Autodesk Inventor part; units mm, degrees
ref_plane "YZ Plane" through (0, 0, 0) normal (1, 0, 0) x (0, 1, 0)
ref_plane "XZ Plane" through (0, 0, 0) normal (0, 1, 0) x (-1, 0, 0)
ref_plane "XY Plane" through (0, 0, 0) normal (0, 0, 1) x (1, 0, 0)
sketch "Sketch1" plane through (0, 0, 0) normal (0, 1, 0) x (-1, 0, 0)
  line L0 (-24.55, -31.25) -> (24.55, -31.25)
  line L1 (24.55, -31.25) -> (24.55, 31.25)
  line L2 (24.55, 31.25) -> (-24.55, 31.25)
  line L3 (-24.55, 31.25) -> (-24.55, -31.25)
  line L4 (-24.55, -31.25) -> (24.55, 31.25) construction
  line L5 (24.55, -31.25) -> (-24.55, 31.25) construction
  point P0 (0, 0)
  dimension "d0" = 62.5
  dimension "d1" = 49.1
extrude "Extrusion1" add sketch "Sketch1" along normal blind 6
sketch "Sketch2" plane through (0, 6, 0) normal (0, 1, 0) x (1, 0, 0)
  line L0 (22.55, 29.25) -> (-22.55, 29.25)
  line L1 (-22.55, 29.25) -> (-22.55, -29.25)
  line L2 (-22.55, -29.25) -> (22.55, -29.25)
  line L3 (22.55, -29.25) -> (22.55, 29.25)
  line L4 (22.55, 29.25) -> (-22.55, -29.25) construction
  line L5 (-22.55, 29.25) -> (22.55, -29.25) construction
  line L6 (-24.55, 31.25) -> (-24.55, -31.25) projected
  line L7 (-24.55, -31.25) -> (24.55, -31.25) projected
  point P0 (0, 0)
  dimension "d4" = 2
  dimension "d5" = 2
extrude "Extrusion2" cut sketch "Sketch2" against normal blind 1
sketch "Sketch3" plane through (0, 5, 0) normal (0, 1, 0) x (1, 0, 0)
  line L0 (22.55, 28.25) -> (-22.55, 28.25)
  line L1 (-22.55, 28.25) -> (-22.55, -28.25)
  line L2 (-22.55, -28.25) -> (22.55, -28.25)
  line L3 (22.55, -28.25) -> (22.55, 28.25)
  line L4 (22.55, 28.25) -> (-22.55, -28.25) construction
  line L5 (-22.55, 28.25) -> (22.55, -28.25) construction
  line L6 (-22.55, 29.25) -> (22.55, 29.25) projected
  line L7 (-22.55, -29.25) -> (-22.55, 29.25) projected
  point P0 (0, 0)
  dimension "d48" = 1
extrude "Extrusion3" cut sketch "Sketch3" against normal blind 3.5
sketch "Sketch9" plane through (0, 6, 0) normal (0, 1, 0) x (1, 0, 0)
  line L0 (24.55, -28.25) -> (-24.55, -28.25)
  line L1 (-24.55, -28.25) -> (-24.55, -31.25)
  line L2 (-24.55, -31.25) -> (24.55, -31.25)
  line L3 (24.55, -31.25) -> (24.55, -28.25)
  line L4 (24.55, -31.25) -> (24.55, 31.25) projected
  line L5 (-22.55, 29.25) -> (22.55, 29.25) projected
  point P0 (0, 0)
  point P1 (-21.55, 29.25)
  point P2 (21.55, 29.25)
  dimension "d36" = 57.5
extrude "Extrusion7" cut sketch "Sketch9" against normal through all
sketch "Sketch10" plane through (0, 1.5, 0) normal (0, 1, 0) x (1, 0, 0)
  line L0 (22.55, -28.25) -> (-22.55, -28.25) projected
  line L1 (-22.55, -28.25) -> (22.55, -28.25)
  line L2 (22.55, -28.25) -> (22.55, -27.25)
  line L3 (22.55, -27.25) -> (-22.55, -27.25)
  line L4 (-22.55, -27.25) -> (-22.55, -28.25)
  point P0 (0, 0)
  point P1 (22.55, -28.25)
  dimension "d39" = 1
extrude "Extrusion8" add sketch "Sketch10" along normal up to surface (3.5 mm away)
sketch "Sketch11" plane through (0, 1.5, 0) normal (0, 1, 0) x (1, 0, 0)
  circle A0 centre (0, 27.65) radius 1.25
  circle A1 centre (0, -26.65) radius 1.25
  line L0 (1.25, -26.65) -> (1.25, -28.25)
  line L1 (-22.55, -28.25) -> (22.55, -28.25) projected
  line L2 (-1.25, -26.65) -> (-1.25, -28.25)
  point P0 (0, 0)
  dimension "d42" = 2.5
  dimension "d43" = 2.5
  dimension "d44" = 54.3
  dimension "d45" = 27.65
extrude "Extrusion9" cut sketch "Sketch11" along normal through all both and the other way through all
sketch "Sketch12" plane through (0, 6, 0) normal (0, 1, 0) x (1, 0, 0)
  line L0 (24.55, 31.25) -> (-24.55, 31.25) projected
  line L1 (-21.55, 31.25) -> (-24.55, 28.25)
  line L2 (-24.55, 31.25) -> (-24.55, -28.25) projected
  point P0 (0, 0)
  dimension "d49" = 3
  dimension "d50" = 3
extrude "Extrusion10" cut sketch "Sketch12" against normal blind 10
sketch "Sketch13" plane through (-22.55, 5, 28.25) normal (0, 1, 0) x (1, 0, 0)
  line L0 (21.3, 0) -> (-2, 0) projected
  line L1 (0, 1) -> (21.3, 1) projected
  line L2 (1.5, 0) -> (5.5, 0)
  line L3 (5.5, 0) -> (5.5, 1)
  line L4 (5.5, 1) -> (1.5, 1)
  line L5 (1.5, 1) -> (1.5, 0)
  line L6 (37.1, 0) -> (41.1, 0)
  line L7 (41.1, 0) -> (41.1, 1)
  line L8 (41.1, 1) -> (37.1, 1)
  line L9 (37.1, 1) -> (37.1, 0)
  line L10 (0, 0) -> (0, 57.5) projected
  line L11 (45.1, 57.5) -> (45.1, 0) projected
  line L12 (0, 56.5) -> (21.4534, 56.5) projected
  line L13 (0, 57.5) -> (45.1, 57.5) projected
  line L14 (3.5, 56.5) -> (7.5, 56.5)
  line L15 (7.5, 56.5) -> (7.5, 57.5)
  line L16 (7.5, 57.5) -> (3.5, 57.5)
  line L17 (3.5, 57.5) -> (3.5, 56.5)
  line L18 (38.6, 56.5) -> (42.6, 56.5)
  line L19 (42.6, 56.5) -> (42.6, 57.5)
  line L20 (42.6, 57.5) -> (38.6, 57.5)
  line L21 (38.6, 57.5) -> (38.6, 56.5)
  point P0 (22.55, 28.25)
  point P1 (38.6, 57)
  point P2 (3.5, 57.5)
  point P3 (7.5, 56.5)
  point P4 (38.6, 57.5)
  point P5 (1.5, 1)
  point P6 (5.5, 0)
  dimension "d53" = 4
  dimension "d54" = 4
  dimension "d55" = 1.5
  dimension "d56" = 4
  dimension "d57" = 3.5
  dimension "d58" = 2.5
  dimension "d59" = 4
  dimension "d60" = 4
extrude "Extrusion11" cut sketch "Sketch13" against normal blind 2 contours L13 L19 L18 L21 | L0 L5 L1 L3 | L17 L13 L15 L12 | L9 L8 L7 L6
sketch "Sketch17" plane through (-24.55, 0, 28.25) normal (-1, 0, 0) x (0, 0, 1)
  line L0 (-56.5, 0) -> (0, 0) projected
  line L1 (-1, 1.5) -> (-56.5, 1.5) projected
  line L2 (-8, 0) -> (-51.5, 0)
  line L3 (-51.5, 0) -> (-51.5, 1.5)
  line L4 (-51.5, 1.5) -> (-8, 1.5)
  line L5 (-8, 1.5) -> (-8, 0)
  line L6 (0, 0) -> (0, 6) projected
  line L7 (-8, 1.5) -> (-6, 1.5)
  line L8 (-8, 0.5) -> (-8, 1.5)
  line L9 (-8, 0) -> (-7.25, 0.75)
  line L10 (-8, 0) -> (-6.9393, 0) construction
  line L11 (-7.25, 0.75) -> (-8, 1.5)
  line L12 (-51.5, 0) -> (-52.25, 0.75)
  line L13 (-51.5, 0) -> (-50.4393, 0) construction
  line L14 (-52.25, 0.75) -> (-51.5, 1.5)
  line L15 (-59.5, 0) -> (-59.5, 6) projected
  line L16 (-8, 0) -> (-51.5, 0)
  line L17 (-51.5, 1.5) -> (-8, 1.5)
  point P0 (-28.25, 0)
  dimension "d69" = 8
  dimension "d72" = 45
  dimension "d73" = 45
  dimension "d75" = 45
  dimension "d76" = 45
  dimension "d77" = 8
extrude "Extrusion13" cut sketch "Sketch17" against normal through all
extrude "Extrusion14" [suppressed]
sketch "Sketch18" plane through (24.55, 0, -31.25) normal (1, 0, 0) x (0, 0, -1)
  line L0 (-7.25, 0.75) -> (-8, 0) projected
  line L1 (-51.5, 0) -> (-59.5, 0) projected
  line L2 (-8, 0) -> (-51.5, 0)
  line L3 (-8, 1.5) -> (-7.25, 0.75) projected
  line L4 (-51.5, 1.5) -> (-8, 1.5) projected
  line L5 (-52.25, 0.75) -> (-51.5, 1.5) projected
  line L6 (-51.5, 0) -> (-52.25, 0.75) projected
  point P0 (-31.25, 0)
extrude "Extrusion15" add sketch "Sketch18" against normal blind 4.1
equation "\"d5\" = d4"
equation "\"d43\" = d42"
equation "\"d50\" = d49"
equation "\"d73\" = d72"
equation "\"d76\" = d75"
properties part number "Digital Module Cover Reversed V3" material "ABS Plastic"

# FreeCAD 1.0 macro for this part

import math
import FreeCAD as App
import Part
import Sketcher
from FreeCAD import Vector

doc = App.newDocument("Part")
body = doc.addObject("PartDesign::Body", "Body")

sketch1 = doc.addObject("Sketcher::SketchObject", "Sketch")
body.addObject(sketch1)
sketch1.AttachmentSupport = (doc.XZ_Plane, [""])
sketch1.MapMode = "FlatFace"
sketch1.addGeometry(Part.LineSegment(Vector(25, 31, 0), Vector(25, -31, 0)), False)
sketch1.addGeometry(Part.LineSegment(Vector(25, -31, 0), Vector(-25, -31, 0)), False)
sketch1.addGeometry(Part.LineSegment(Vector(-25, -31, 0), Vector(-25, 31, 0)), False)
sketch1.addGeometry(Part.LineSegment(Vector(-25, 31, 0), Vector(25, 31, 0)), False)
sketch1.addConstraint(Sketcher.Constraint("Coincident", 0, 2, 1, 1))
sketch1.addConstraint(Sketcher.Constraint("Coincident", 1, 2, 2, 1))
sketch1.addConstraint(Sketcher.Constraint("Coincident", 2, 2, 3, 1))
sketch1.addConstraint(Sketcher.Constraint("Coincident", 3, 2, 0, 1))
sketch1.addConstraint(Sketcher.Constraint("Vertical", 0))
sketch1.addConstraint(Sketcher.Constraint("Horizontal", 1))
sketch1.addConstraint(Sketcher.Constraint("Vertical", 2))
sketch1.addConstraint(Sketcher.Constraint("Horizontal", 3))
sketch1.addConstraint(Sketcher.Constraint("Symmetric", 0, 2, 2, 2, -1, 1))
sketch1.addConstraint(Sketcher.Constraint("DistanceX", 1, 2, 1, 1, 49.1))
sketch1.addConstraint(Sketcher.Constraint("DistanceY", 0, 2, 0, 1, 62.5))
pad1 = doc.addObject("PartDesign::Pad", "Pad")
body.addObject(pad1)
pad1.Profile = sketch1
pad1.Length = 6
pad1.Reversed = True

sketch2 = doc.addObject("Sketcher::SketchObject", "Sketch001")
body.addObject(sketch2)
sketch2.AttachmentSupport = (doc.XZ_Plane, [""])
sketch2.MapMode = "FlatFace"
sketch2.AttachmentOffset = App.Placement(Vector(0, 0, -6), App.Rotation())
sketch2.addGeometry(Part.LineSegment(Vector(23, 29, 0), Vector(23, -29, 0)), False)
sketch2.addGeometry(Part.LineSegment(Vector(23, -29, 0), Vector(-23, -29, 0)), False)
sketch2.addGeometry(Part.LineSegment(Vector(-23, -29, 0), Vector(-23, 29, 0)), False)
sketch2.addGeometry(Part.LineSegment(Vector(-23, 29, 0), Vector(23, 29, 0)), False)
sketch2.addConstraint(Sketcher.Constraint("Coincident", 0, 2, 1, 1))
sketch2.addConstraint(Sketcher.Constraint("Coincident", 1, 2, 2, 1))
sketch2.addConstraint(Sketcher.Constraint("Coincident", 2, 2, 3, 1))
sketch2.addConstraint(Sketcher.Constraint("Coincident", 3, 2, 0, 1))
sketch2.addConstraint(Sketcher.Constraint("Vertical", 0))
sketch2.addConstraint(Sketcher.Constraint("Horizontal", 1))
sketch2.addConstraint(Sketcher.Constraint("Vertical", 2))
sketch2.addConstraint(Sketcher.Constraint("Horizontal", 3))
sketch2.addConstraint(Sketcher.Constraint("Symmetric", 0, 2, 2, 2, -1, 1))
sketch2.addConstraint(Sketcher.Constraint("DistanceX", 1, 2, 1, 1, 45.1))
sketch2.addConstraint(Sketcher.Constraint("DistanceY", 0, 2, 0, 1, 58.5))
pocket1 = doc.addObject("PartDesign::Pocket", "Pocket")
body.addObject(pocket1)
pocket1.Profile = sketch2
pocket1.Length = 1
pocket1.Reversed = True

sketch3 = doc.addObject("Sketcher::SketchObject", "Sketch002")
body.addObject(sketch3)
sketch3.AttachmentSupport = (doc.XZ_Plane, [""])
sketch3.MapMode = "FlatFace"
sketch3.AttachmentOffset = App.Placement(Vector(0, 0, -5), App.Rotation())
sketch3.addGeometry(Part.LineSegment(Vector(23, 28, 0), Vector(23, -28, 0)), False)
sketch3.addGeometry(Part.LineSegment(Vector(23, -28, 0), Vector(-23, -28, 0)), False)
sketch3.addGeometry(Part.LineSegment(Vector(-23, -28, 0), Vector(-23, 28, 0)), False)
sketch3.addGeometry(Part.LineSegment(Vector(-23, 28, 0), Vector(23, 28, 0)), False)
sketch3.addConstraint(Sketcher.Constraint("Coincident", 0, 2, 1, 1))
sketch3.addConstraint(Sketcher.Constraint("Coincident", 1, 2, 2, 1))
sketch3.addConstraint(Sketcher.Constraint("Coincident", 2, 2, 3, 1))
sketch3.addConstraint(Sketcher.Constraint("Coincident", 3, 2, 0, 1))
sketch3.addConstraint(Sketcher.Constraint("Vertical", 0))
sketch3.addConstraint(Sketcher.Constraint("Horizontal", 1))
sketch3.addConstraint(Sketcher.Constraint("Vertical", 2))
sketch3.addConstraint(Sketcher.Constraint("Horizontal", 3))
sketch3.addConstraint(Sketcher.Constraint("Symmetric", 0, 2, 2, 2, -1, 1))
sketch3.addConstraint(Sketcher.Constraint("DistanceX", 1, 2, 1, 1, 45.1))
sketch3.addConstraint(Sketcher.Constraint("DistanceY", 0, 2, 0, 1, 56.5))
pocket2 = doc.addObject("PartDesign::Pocket", "Pocket001")
body.addObject(pocket2)
pocket2.Profile = sketch3
pocket2.Length = 3.5
pocket2.Reversed = True

sketch4 = doc.addObject("Sketcher::SketchObject", "Sketch003")
body.addObject(sketch4)
sketch4.AttachmentSupport = (doc.XZ_Plane, [""])
sketch4.MapMode = "FlatFace"
sketch4.AttachmentOffset = App.Placement(Vector(0, 0, -6), App.Rotation())
sketch4.addGeometry(Part.LineSegment(Vector(24.6, 31.2, 0), Vector(24.6, 28.2, 0)), False)
sketch4.addGeometry(Part.LineSegment(Vector(24.6, 28.2, 0), Vector(-24.6, 28.2, 0)), False)
sketch4.addGeometry(Part.LineSegment(Vector(-24.6, 28.2, 0), Vector(-24.6, 31.2, 0)), False)
sketch4.addGeometry(Part.LineSegment(Vector(-24.6, 31.2, 0), Vector(24.6, 31.2, 0)), False)
sketch4.addConstraint(Sketcher.Constraint("Coincident", 0, 2, 1, 1))
sketch4.addConstraint(Sketcher.Constraint("Coincident", 1, 2, 2, 1))
sketch4.addConstraint(Sketcher.Constraint("Coincident", 2, 2, 3, 1))
sketch4.addConstraint(Sketcher.Constraint("Coincident", 3, 2, 0, 1))
sketch4.addConstraint(Sketcher.Constraint("Vertical", 0))
sketch4.addConstraint(Sketcher.Constraint("Horizontal", 1))
sketch4.addConstraint(Sketcher.Constraint("Vertical", 2))
sketch4.addConstraint(Sketcher.Constraint("Horizontal", 3))
sketch4.addConstraint(Sketcher.Constraint("DistanceY", 0, 2, 0, 1, 3.0))
sketch4.addConstraint(Sketcher.Constraint("DistanceX", 1, 2, 1, 1, 49.1))
sketch4.addConstraint(Sketcher.Constraint("DistanceX", -1, 1, 0, 2, 24.55))
sketch4.addConstraint(Sketcher.Constraint("DistanceY", -1, 1, 0, 2, 28.25))
pocket3 = doc.addObject("PartDesign::Pocket", "Pocket002")
body.addObject(pocket3)
pocket3.Profile = sketch4
pocket3.Type = "ThroughAll"
pocket3.Reversed = True

sketch5 = doc.addObject("Sketcher::SketchObject", "Sketch004")
body.addObject(sketch5)
sketch5.AttachmentSupport = (doc.XZ_Plane, [""])
sketch5.MapMode = "FlatFace"
sketch5.AttachmentOffset = App.Placement(Vector(0, 0, -1.5), App.Rotation())
sketch5.addGeometry(Part.LineSegment(Vector(-22.6, 28.2, 0), Vector(22.6, 28.2, 0)), False)
sketch5.addGeometry(Part.LineSegment(Vector(22.6, 28.2, 0), Vector(22.6, 27.2, 0)), False)
sketch5.addGeometry(Part.LineSegment(Vector(22.6, 27.2, 0), Vector(-22.6, 27.2, 0)), False)
sketch5.addGeometry(Part.LineSegment(Vector(-22.6, 27.2, 0), Vector(-22.6, 28.2, 0)), False)
sketch5.addConstraint(Sketcher.Constraint("Coincident", 0, 2, 1, 1))
sketch5.addConstraint(Sketcher.Constraint("Coincident", 1, 2, 2, 1))
sketch5.addConstraint(Sketcher.Constraint("Coincident", 2, 2, 3, 1))
sketch5.addConstraint(Sketcher.Constraint("Coincident", 3, 2, 0, 1))
sketch5.addConstraint(Sketcher.Constraint("Horizontal", 0))
sketch5.addConstraint(Sketcher.Constraint("Vertical", 1))
sketch5.addConstraint(Sketcher.Constraint("Horizontal", 2))
sketch5.addConstraint(Sketcher.Constraint("Vertical", 3))
sketch5.addConstraint(Sketcher.Constraint("DistanceY", 1, 2, 1, 1, 1.0))
sketch5.addConstraint(Sketcher.Constraint("DistanceX", 0, 1, 0, 2, 45.1))
sketch5.addConstraint(Sketcher.Constraint("DistanceX", -1, 1, 0, 2, 22.55))
sketch5.addConstraint(Sketcher.Constraint("DistanceY", -1, 1, 0, 2, 28.25))
pad2 = doc.addObject("PartDesign::Pad", "Pad001")
body.addObject(pad2)
pad2.Profile = sketch5
pad2.Length = 3.5
pad2.Reversed = True

sketch6 = doc.addObject("Sketcher::SketchObject", "Sketch005")
body.addObject(sketch6)
sketch6.AttachmentSupport = (doc.XZ_Plane, [""])
sketch6.MapMode = "FlatFace"
sketch6.AttachmentOffset = App.Placement(Vector(0, 0, -1.5), App.Rotation())
sketch6.addGeometry(Part.Circle(Vector(0, -27.6, 0), Vector(0, 0, 1), 1.2), False)
sketch6.addGeometry(Part.ArcOfCircle(Part.Circle(Vector(0, 26.6, 0), Vector(0, 0, 1), 1.2), math.radians(180), math.radians(360)), False)
sketch6.addGeometry(Part.LineSegment(Vector(-1.2, 26.6, 0), Vector(-1.2, 28.2, 0)), False)
sketch6.addGeometry(Part.LineSegment(Vector(-1.2, 28.2, 0), Vector(1.2, 28.2, 0)), False)
sketch6.addGeometry(Part.LineSegment(Vector(1.2, 28.2, 0), Vector(1.2, 26.6, 0)), False)
sketch6.addConstraint(Sketcher.Constraint("Tangent", 1, 1, 2, 1))
sketch6.addConstraint(Sketcher.Constraint("Coincident", 2, 2, 3, 1))
sketch6.addConstraint(Sketcher.Constraint("Coincident", 3, 2, 4, 1))
sketch6.addConstraint(Sketcher.Constraint("Tangent", 4, 2, 1, 2))
sketch6.addConstraint(Sketcher.Constraint("Vertical", 2))
sketch6.addConstraint(Sketcher.Constraint("Horizontal", 3))
sketch6.addConstraint(Sketcher.Constraint("Vertical", 4))
sketch6.addConstraint(Sketcher.Constraint("Equal", 0, 1))
sketch6.addConstraint(Sketcher.Constraint("PointOnObject", 0, 3, -2))
sketch6.addConstraint(Sketcher.Constraint("PointOnObject", 1, 3, -2))
sketch6.addConstraint(Sketcher.Constraint("Diameter", 0, 2.5))
sketch6.addConstraint(Sketcher.Constraint("DistanceY", 0, 3, 1, 3, 54.3))
sketch6.addConstraint(Sketcher.Constraint("DistanceY", 0, 3, -1, 1, 27.65))
sketch6.addConstraint(Sketcher.Constraint("DistanceY", 2, 1, 2, 2, 1.6))
pocket4 = doc.addObject("PartDesign::Pocket", "Pocket003")
body.addObject(pocket4)
pocket4.Profile = sketch6
pocket4.Type = "ThroughAll"
pocket4.Midplane = True

sketch7 = doc.addObject("Sketcher::SketchObject", "Sketch006")
body.addObject(sketch7)
sketch7.AttachmentSupport = (doc.XZ_Plane, [""])
sketch7.MapMode = "FlatFace"
sketch7.AttachmentOffset = App.Placement(Vector(0, 0, -6), App.Rotation())
sketch7.addGeometry(Part.LineSegment(Vector(-24.6, -28.2, 0), Vector(-21.6, -31.2, 0)), False)
sketch7.addGeometry(Part.LineSegment(Vector(-21.6, -31.2, 0), Vector(-24.6, -31.2, 0)), False)
sketch7.addGeometry(Part.LineSegment(Vector(-24.6, -31.2, 0), Vector(-24.6, -28.2, 0)), False)
sketch7.addConstraint(Sketcher.Constraint("Coincident", 0, 2, 1, 1))
sketch7.addConstraint(Sketcher.Constraint("Coincident", 1, 2, 2, 1))
sketch7.addConstraint(Sketcher.Constraint("Coincident", 2, 2, 0, 1))
sketch7.addConstraint(Sketcher.Constraint("Horizontal", 1))
sketch7.addConstraint(Sketcher.Constraint("Vertical", 2))
sketch7.addConstraint(Sketcher.Constraint("Equal", 1, 2))
sketch7.addConstraint(Sketcher.Constraint("DistanceX", 1, 2, 1, 1, 3.0))
sketch7.addConstraint(Sketcher.Constraint("DistanceX", 0, 2, -1, 1, 21.55))
sketch7.addConstraint(Sketcher.Constraint("DistanceY", 0, 2, -1, 1, 31.25))
pocket5 = doc.addObject("PartDesign::Pocket", "Pocket004")
body.addObject(pocket5)
pocket5.Profile = sketch7
pocket5.Length = 10
pocket5.Reversed = True

sketch8 = doc.addObject("Sketcher::SketchObject", "Sketch007")
body.addObject(sketch8)
sketch8.AttachmentSupport = (doc.XZ_Plane, [""])
sketch8.MapMode = "FlatFace"
sketch8.AttachmentOffset = App.Placement(Vector(0, 0, -5), App.Rotation())
sketch8.addGeometry(Part.LineSegment(Vector(20.1, -29.2, 0), Vector(16.1, -29.2, 0)), False)
sketch8.addGeometry(Part.LineSegment(Vector(16.1, -29.2, 0), Vector(16.1, -28.2, 0)), False)
sketch8.addGeometry(Part.LineSegment(Vector(16.1, -28.2, 0), Vector(20.1, -28.2, 0)), False)
sketch8.addGeometry(Part.LineSegment(Vector(20.1, -28.2, 0), Vector(20.1, -29.2, 0)), False)
sketch8.addGeometry(Part.LineSegment(Vector(-21.1, 28.2, 0), Vector(-17.1, 28.2, 0)), False)
sketch8.addGeometry(Part.LineSegment(Vector(-17.1, 28.2, 0), Vector(-17.1, 27.2, 0)), False)
sketch8.addGeometry(Part.LineSegment(Vector(-17.1, 27.2, 0), Vector(-21.1, 27.2, 0)), False)
sketch8.addGeometry(Part.LineSegment(Vector(-21.1, 27.2, 0), Vector(-21.1, 28.2, 0)), False)
sketch8.addGeometry(Part.LineSegment(Vector(-19.1, -29.2, 0), Vector(-19.1, -28.2, 0)), False)
sketch8.addGeometry(Part.LineSegment(Vector(-19.1, -28.2, 0), Vector(-15.1, -28.2, 0)), False)
sketch8.addGeometry(Part.LineSegment(Vector(-15.1, -28.2, 0), Vector(-15.1, -29.2, 0)), False)
sketch8.addGeometry(Part.LineSegment(Vector(-15.1, -29.2, 0), Vector(-19.1, -29.2, 0)), False)
sketch8.addGeometry(Part.LineSegment(Vector(14.6, 27.2, 0), Vector(14.6, 28.2, 0)), False)
sketch8.addGeometry(Part.LineSegment(Vector(14.6, 28.2, 0), Vector(18.6, 28.2, 0)), False)
sketch8.addGeometry(Part.LineSegment(Vector(18.6, 28.2, 0), Vector(18.6, 27.2, 0)), False)
sketch8.addGeometry(Part.LineSegment(Vector(18.6, 27.2, 0), Vector(14.6, 27.2, 0)), False)
sketch8.addConstraint(Sketcher.Constraint("Coincident", 0, 2, 1, 1))
sketch8.addConstraint(Sketcher.Constraint("Coincident", 1, 2, 2, 1))
sketch8.addConstraint(Sketcher.Constraint("Coincident", 2, 2, 3, 1))
sketch8.addConstraint(Sketcher.Constraint("Coincident", 3, 2, 0, 1))
sketch8.addConstraint(Sketcher.Constraint("Coincident", 4, 2, 5, 1))
sketch8.addConstraint(Sketcher.Constraint("Coincident", 5, 2, 6, 1))
sketch8.addConstraint(Sketcher.Constraint("Coincident", 6, 2, 7, 1))
sketch8.addConstraint(Sketcher.Constraint("Coincident", 7, 2, 4, 1))
sketch8.addConstraint(Sketcher.Constraint("Coincident", 8, 2, 9, 1))
sketch8.addConstraint(Sketcher.Constraint("Coincident", 9, 2, 10, 1))
sketch8.addConstraint(Sketcher.Constraint("Coincident", 10, 2, 11, 1))
sketch8.addConstraint(Sketcher.Constraint("Coincident", 11, 2, 8, 1))
sketch8.addConstraint(Sketcher.Constraint("Coincident", 12, 2, 13, 1))
sketch8.addConstraint(Sketcher.Constraint("Coincident", 13, 2, 14, 1))
sketch8.addConstraint(Sketcher.Constraint("Coincident", 14, 2, 15, 1))
sketch8.addConstraint(Sketcher.Constraint("Coincident", 15, 2, 12, 1))
sketch8.addConstraint(Sketcher.Constraint("Horizontal", 0))
sketch8.addConstraint(Sketcher.Constraint("Vertical", 1))
sketch8.addConstraint(Sketcher.Constraint("Horizontal", 2))
sketch8.addConstraint(Sketcher.Constraint("Vertical", 3))
sketch8.addConstraint(Sketcher.Constraint("Horizontal", 4))
sketch8.addConstraint(Sketcher.Constraint("Vertical", 5))
sketch8.addConstraint(Sketcher.Constraint("Horizontal", 6))
sketch8.addConstraint(Sketcher.Constraint("Vertical", 7))
sketch8.addConstraint(Sketcher.Constraint("Vertical", 8))
sketch8.addConstraint(Sketcher.Constraint("Horizontal", 9))
sketch8.addConstraint(Sketcher.Constraint("Vertical", 10))
sketch8.addConstraint(Sketcher.Constraint("Horizontal", 11))
sketch8.addConstraint(Sketcher.Constraint("Vertical", 12))
sketch8.addConstraint(Sketcher.Constraint("Horizontal", 13))
sketch8.addConstraint(Sketcher.Constraint("Vertical", 14))
sketch8.addConstraint(Sketcher.Constraint("Horizontal", 15))
sketch8.addConstraint(Sketcher.Constraint("Horizontal", 2, 2, 8, 2))
sketch8.addConstraint(Sketcher.Constraint("Horizontal", 3, 2, 10, 2))
sketch8.addConstraint(Sketcher.Constraint("Horizontal", 7, 2, 12, 2))
sketch8.addConstraint(Sketcher.Constraint("Horizontal", 6, 2, 14, 2))
sketch8.addConstraint(Sketcher.Constraint("Equal", 2, 4))
sketch8.addConstraint(Sketcher.Constraint("Equal", 6, 9))
sketch8.addConstraint(Sketcher.Constraint("Equal", 11, 13))
sketch8.addConstraint(Sketcher.Constraint("Equal", 3, 5))
sketch8.addConstraint(Sketcher.Constraint("DistanceX", 0, 2, 0, 1, 4.0))
sketch8.addConstraint(Sketcher.Constraint("DistanceX", 12, 2, 1, 2, 1.5))
sketch8.addConstraint(Sketcher.Constraint("DistanceY", 1, 1, 1, 2, 1.0))
sketch8.addConstraint(Sketcher.Constraint("DistanceX", 8, 2, 5, 2, 2.0))
sketch8.addConstraint(Sketcher.Constraint("DistanceX", 4, 2, 1, 2, 33.1))
sketch8.addConstraint(Sketcher.Constraint("DistanceY", 1, 2, 4, 2, 56.5))
sketch8.addConstraint(Sketcher.Constraint("DistanceX", -1, 1, 0, 2, 16.05))
sketch8.addConstraint(Sketcher.Constraint("DistanceY", 0, 2, -1, 1, 29.25))
pocket6 = doc.addObject("PartDesign::Pocket", "Pocket005")
body.addObject(pocket6)
pocket6.Profile = sketch8
pocket6.Length = 2
pocket6.Reversed = True

sketch9 = doc.addObject("Sketcher::SketchObject", "Sketch008")
body.addObject(sketch9)
sketch9.AttachmentSupport = (doc.YZ_Plane, [""])
sketch9.MapMode = "FlatFace"
sketch9.AttachmentOffset = App.Placement(Vector(0, 0, -24.55), App.Rotation())
sketch9.addGeometry(Part.LineSegment(Vector(1.5, 20.2, 0), Vector(1.5, -23.2, 0)), False)
sketch9.addGeometry(Part.LineSegment(Vector(1.5, -23.2, 0), Vector(0.8, -24, 0)), False)
sketch9.addGeometry(Part.LineSegment(Vector(0.8, -24, 0), Vector(0, -23.2, 0)), False)
sketch9.addGeometry(Part.LineSegment(Vector(0, -23.2, 0), Vector(0, 20.2, 0)), False)
sketch9.addGeometry(Part.LineSegment(Vector(0, 20.2, 0), Vector(0.8, 21, 0)), False)
sketch9.addGeometry(Part.LineSegment(Vector(0.8, 21, 0), Vector(1.5, 20.2, 0)), False)
sketch9.addConstraint(Sketcher.Constraint("Coincident", 0, 2, 1, 1))
sketch9.addConstraint(Sketcher.Constraint("Coincident", 1, 2, 2, 1))
sketch9.addConstraint(Sketcher.Constraint("Coincident", 2, 2, 3, 1))
sketch9.addConstraint(Sketcher.Constraint("Coincident", 3, 2, 4, 1))
sketch9.addConstraint(Sketcher.Constraint("Coincident", 4, 2, 5, 1))
sketch9.addConstraint(Sketcher.Constraint("Coincident", 5, 2, 0, 1))
sketch9.addConstraint(Sketcher.Constraint("Vertical", 0))
sketch9.addConstraint(Sketcher.Constraint("Vertical", 3))
sketch9.addConstraint(Sketcher.Constraint("PointOnObject", 2, 2, -2))
sketch9.addConstraint(Sketcher.Constraint("Perpendicular", 1, 2))
sketch9.addConstraint(Sketcher.Constraint("Perpendicular", 2, 4))
sketch9.addConstraint(Sketcher.Constraint("Perpendicular", 4, 5))
sketch9.addConstraint(Sketcher.Constraint("Horizontal", 0, 2, 2, 2))
sketch9.addConstraint(Sketcher.Constraint("Horizontal", 3, 2, 5, 2))
sketch9.addConstraint(Sketcher.Constraint("Vertical", 1, 2, 4, 2))
sketch9.addConstraint(Sketcher.Constraint("DistanceY", 1, 2, 4, 2, 45.0))
sketch9.addConstraint(Sketcher.Constraint("DistanceY", 0, 2, 0, 1, 43.5))
sketch9.addConstraint(Sketcher.Constraint("DistanceY", 1, 2, -1, 1, 24.0))
pocket7 = doc.addObject("PartDesign::Pocket", "Pocket006")
body.addObject(pocket7)
pocket7.Profile = sketch9
pocket7.Type = "ThroughAll"
pocket7.Reversed = True

sketch10 = doc.addObject("Sketcher::SketchObject", "Sketch009")
body.addObject(sketch10)
sketch10.AttachmentSupport = (doc.YZ_Plane, [""])
sketch10.MapMode = "FlatFace"
sketch10.AttachmentOffset = App.Placement(Vector(0, 0, 24.55), App.Rotation())
sketch10.addGeometry(Part.LineSegment(Vector(0, -23.2, 0), Vector(0.8, -24, 0)), False)
sketch10.addGeometry(Part.LineSegment(Vector(0.8, -24, 0), Vector(1.5, -23.2, 0)), False)
sketch10.addGeometry(Part.LineSegment(Vector(1.5, -23.2, 0), Vector(1.5, 20.2, 0)), False)
sketch10.addGeometry(Part.LineSegment(Vector(1.5, 20.2, 0), Vector(0.8, 21, 0)), False)
sketch10.addGeometry(Part.LineSegment(Vector(0.8, 21, 0), Vector(0, 20.2, 0)), False)
sketch10.addGeometry(Part.LineSegment(Vector(0, 20.2, 0), Vector(0, -23.2, 0)), False)
sketch10.addConstraint(Sketcher.Constraint("Coincident", 0, 2, 1, 1))
sketch10.addConstraint(Sketcher.Constraint("Coincident", 1, 2, 2, 1))
sketch10.addConstraint(Sketcher.Constraint("Coincident", 2, 2, 3, 1))
sketch10.addConstraint(Sketcher.Constraint("Coincident", 3, 2, 4, 1))
sketch10.addConstraint(Sketcher.Constraint("Coincident", 4, 2, 5, 1))
sketch10.addConstraint(Sketcher.Constraint("Coincident", 5, 2, 0, 1))
sketch10.addConstraint(Sketcher.Constraint("Vertical", 2))
sketch10.addConstraint(Sketcher.Constraint("Vertical", 5))
sketch10.addConstraint(Sketcher.Constraint("PointOnObject", 4, 2, -2))
sketch10.addConstraint(Sketcher.Constraint("Perpendicular", 0, 1))
sketch10.addConstraint(Sketcher.Constraint("Perpendicular", 1, 3))
sketch10.addConstraint(Sketcher.Constraint("Perpendicular", 3, 4))
sketch10.addConstraint(Sketcher.Constraint("Horizontal", 2, 2, 4, 2))
sketch10.addConstraint(Sketcher.Constraint("Horizontal", 1, 2, 5, 2))
sketch10.addConstraint(Sketcher.Constraint("Vertical", 0, 2, 3, 2))
sketch10.addConstraint(Sketcher.Constraint("DistanceY", 2, 1, 2, 2, 43.5))
sketch10.addConstraint(Sketcher.Constraint("DistanceY", 0, 2, -1, 1, 24.0))
sketch10.addConstraint(Sketcher.Constraint("DistanceY", -1, 1, 3, 2, 21.0))
pad3 = doc.addObject("PartDesign::Pad", "Pad002")
body.addObject(pad3)
pad3.Profile = sketch10
pad3.Length = 4.1
pad3.Reversed = True

doc.recompute()
